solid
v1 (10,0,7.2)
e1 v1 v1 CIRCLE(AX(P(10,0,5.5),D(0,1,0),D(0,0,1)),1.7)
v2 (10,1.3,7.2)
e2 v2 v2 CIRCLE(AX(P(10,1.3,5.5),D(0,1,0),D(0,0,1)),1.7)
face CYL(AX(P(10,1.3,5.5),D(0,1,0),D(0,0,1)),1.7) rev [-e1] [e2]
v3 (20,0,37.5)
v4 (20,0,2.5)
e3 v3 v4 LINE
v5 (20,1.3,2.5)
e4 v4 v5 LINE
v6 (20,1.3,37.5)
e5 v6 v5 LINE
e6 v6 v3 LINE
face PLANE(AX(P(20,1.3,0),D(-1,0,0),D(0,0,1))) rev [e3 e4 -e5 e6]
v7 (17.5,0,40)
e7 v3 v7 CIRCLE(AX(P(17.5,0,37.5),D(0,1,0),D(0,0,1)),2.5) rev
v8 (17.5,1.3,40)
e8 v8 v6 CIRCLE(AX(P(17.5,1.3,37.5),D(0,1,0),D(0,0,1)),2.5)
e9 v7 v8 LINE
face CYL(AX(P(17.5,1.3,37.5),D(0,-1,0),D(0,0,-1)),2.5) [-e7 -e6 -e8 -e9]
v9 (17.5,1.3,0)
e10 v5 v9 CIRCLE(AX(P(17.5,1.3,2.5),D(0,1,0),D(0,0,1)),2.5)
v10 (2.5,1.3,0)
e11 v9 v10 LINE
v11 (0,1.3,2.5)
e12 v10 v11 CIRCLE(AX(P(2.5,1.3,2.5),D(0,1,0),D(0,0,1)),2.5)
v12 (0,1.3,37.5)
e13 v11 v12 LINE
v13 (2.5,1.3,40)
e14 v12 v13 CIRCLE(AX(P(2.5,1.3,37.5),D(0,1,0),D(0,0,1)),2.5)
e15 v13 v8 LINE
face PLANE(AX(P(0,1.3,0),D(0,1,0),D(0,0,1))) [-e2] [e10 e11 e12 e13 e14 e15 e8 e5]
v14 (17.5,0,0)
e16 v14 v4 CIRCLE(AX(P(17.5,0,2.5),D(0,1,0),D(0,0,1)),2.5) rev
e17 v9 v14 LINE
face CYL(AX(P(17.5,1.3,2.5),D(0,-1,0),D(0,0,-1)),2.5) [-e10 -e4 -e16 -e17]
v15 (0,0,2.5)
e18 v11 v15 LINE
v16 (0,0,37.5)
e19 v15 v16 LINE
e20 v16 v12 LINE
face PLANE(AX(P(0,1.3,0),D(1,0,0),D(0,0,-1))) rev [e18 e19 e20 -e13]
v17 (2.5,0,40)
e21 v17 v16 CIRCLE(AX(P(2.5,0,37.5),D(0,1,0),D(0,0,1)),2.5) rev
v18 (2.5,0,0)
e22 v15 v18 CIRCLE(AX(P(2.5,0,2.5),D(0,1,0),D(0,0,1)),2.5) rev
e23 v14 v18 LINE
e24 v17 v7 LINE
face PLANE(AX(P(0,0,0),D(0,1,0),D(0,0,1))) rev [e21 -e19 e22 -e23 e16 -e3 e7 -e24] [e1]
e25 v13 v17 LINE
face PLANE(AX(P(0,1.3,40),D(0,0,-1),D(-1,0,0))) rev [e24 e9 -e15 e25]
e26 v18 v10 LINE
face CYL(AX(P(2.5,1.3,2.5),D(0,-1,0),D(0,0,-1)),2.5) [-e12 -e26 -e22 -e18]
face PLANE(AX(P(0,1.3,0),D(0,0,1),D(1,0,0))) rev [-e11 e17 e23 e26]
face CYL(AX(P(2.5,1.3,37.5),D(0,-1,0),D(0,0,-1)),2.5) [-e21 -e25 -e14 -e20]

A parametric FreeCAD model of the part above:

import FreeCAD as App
import Part
import Sketcher
from FreeCAD import Vector
Q = App.Units.Quantity


def edges_at(feature, points):
    """Names of the edges that pass closest to the given points."""
    edges = feature.Shape.Edges
    near = lambda p: min(range(len(edges)), key=lambda i: edges[i].distToShape(Part.Vertex(*p))[0])
    return sorted({f"Edge{near(p) + 1}" for p in points})

doc = App.newDocument("Part")
body = doc.addObject("PartDesign::Body", "Body")

# Sketch on XZ plane
sketch1 = body.newObject("Sketcher::SketchObject", "Sketch")
sketch1.AttachmentSupport = (doc.getObject("XZ_Plane"), [""])
sketch1.MapMode = "FlatFace"
sketch1.addGeometry([
    Part.LineSegment(Vector(0, 0, 0), Vector(0, 40, 0)),
    Part.LineSegment(Vector(0, 40, 0), Vector(20, 40, 0)),
    Part.LineSegment(Vector(20, 40, 0), Vector(20, 0, 0)),
    Part.LineSegment(Vector(20, 0, 0), Vector(0, 0, 0)),
], False)
sketch1.addConstraint([
    Sketcher.Constraint("Coincident", 0, 2, 1, 1),
    Sketcher.Constraint("Coincident", 1, 2, 2, 1),
    Sketcher.Constraint("Coincident", 2, 2, 3, 1),
    Sketcher.Constraint("Coincident", 3, 2, 0, 1),
    Sketcher.Constraint("Vertical", 0),
    Sketcher.Constraint("Horizontal", 1),
    Sketcher.Constraint("Vertical", 2),
    Sketcher.Constraint("Horizontal", 3),
    Sketcher.Constraint("Coincident", 3, 2, -1, 1),
    Sketcher.Constraint("DistanceX", 1, 1, 1, 2, Q("20 mm")),
    Sketcher.Constraint("DistanceY", 0, 1, 0, 2, Q("40 mm")),
])
pad1 = body.newObject("PartDesign::Pad", "Pad")
pad1.Profile = sketch1
pad1.Length = 1.3
pad1.Reversed = True

# Sketch on XZ plane
sketch2 = body.newObject("Sketcher::SketchObject", "Sketch001")
sketch2.AttachmentSupport = (doc.getObject("XZ_Plane"), [""])
sketch2.MapMode = "FlatFace"
sketch2.AttachmentOffset = App.Placement(Vector(0, 0, -1.3), App.Rotation())
sketch2.addGeometry(Part.Circle(Vector(10, 5.5, 0), Vector(0, 0, 1), 1.7), False)
sketch2.addConstraint([
    Sketcher.Constraint("Diameter", 0, Q("3.4 mm")),
    Sketcher.Constraint("DistanceX", -1, 1, 0, 3, Q("10 mm")),
    Sketcher.Constraint("DistanceY", -1, 1, 0, 3, Q("5.5 mm")),
])
doc.recompute()
hole = body.newObject("PartDesign::Hole", "Hole")
hole.Profile = sketch2
hole.ThreadType = "None"
hole.Diameter = 3.4
hole.DepthType = "Dimension"
hole.Depth = 1.3
hole.DrillPoint = "Flat"
hole.Reversed = True
doc.recompute()

fillet = body.newObject("PartDesign::Fillet", "Fillet")
fillet.Base = (hole, edges_at(hole, [
    (0, 0.65, 0),
    (20, 0.65, 0),
    (20, 0.65, 40),
    (0, 0.65, 40),
]))
fillet.Radius = 2.5

doc.recompute()
